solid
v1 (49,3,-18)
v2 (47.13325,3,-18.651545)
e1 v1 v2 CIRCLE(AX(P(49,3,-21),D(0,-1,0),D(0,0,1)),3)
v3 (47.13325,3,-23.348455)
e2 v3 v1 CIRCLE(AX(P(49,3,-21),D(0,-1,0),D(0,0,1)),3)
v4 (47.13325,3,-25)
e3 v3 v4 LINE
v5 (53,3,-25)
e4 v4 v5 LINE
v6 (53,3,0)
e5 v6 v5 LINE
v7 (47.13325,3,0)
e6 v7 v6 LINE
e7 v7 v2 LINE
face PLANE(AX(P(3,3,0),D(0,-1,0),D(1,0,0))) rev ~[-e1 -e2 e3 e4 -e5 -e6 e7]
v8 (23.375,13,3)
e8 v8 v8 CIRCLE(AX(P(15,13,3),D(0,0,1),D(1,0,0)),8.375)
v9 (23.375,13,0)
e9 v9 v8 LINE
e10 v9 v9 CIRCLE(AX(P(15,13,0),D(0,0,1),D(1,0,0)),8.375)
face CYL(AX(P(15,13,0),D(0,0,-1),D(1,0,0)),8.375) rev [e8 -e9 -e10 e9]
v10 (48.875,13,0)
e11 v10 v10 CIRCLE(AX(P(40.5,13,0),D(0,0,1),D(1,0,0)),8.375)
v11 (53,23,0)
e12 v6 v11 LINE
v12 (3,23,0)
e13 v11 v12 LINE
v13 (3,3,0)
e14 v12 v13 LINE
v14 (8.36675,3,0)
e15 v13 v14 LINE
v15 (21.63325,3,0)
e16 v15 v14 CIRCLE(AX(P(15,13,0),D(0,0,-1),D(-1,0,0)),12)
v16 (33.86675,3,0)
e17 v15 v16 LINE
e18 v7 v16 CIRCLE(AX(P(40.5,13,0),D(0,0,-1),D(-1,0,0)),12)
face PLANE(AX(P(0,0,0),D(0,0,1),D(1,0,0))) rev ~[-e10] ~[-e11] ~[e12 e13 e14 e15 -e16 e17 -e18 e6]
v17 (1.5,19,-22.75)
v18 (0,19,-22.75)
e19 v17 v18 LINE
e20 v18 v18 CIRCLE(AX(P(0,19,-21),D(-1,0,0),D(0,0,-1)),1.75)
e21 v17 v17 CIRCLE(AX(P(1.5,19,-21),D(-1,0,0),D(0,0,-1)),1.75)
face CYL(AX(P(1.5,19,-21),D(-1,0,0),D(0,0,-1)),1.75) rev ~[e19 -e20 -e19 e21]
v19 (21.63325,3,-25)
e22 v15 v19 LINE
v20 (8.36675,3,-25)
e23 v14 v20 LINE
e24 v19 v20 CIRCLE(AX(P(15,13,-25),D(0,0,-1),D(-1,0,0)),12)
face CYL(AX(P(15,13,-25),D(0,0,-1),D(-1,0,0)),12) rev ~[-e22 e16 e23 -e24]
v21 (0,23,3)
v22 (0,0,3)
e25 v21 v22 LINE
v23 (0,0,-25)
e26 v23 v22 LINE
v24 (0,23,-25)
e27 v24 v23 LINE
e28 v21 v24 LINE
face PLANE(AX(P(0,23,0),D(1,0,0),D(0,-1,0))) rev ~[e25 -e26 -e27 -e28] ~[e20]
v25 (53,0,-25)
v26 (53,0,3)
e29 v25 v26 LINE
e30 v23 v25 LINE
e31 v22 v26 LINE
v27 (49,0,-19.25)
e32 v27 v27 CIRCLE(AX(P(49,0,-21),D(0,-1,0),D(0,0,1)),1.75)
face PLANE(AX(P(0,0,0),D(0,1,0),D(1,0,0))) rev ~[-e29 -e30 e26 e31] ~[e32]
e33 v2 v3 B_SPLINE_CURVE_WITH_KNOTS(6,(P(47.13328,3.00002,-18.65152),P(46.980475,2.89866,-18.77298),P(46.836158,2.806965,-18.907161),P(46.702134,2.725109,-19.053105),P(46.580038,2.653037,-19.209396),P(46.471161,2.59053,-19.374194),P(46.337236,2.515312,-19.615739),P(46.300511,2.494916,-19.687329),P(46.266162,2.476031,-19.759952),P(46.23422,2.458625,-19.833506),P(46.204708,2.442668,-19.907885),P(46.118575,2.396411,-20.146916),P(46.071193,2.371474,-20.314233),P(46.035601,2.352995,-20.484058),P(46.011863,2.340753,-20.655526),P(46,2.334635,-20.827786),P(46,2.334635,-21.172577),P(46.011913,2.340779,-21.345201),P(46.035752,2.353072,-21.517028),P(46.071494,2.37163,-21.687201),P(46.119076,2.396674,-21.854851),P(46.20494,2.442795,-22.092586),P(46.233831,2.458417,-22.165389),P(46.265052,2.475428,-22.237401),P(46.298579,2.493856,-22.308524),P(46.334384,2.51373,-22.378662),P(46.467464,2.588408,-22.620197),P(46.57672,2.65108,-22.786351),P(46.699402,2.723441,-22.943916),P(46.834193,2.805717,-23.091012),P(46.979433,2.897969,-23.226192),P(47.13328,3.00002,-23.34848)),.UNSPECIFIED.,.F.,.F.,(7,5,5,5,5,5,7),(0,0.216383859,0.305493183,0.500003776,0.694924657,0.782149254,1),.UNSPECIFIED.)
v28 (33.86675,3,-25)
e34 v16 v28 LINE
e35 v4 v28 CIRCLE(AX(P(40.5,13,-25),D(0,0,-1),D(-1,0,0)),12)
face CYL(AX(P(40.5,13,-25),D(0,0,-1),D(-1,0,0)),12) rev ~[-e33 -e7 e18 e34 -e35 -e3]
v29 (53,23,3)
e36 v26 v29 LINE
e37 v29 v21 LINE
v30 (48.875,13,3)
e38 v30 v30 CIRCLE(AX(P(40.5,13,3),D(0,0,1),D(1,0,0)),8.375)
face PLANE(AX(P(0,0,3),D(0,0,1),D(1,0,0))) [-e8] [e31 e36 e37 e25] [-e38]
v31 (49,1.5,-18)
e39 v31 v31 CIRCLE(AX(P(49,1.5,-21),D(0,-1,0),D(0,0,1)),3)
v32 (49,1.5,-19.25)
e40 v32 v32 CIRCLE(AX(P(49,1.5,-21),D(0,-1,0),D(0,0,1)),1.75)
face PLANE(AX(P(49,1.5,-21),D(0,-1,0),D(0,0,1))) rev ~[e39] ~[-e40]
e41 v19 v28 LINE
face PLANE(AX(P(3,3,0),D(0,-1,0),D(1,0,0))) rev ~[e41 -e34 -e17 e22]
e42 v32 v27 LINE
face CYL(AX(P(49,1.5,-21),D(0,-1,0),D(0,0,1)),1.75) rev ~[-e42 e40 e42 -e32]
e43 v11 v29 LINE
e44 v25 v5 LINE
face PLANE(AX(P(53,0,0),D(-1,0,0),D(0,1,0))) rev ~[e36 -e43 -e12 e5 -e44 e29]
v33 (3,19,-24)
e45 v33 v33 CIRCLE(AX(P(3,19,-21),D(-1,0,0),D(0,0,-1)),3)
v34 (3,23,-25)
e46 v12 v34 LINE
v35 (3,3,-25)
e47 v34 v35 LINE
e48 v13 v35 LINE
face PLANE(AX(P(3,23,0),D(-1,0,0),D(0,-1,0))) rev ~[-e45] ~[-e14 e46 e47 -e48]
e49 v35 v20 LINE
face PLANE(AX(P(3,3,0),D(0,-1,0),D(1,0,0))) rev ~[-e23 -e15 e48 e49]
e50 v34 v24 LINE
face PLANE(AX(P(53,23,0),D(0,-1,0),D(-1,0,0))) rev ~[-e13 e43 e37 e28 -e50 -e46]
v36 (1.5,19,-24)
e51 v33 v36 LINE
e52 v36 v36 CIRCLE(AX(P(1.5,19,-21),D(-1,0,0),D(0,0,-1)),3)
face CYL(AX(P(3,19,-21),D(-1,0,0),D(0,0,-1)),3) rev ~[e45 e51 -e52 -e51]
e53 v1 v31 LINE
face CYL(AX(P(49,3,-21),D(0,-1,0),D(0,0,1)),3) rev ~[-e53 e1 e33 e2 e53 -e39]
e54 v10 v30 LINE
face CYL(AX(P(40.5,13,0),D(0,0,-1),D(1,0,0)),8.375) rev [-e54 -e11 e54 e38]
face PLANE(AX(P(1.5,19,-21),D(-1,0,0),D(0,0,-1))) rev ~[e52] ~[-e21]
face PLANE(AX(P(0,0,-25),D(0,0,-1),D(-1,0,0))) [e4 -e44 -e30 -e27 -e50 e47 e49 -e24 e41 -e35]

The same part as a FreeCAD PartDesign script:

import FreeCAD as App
import Part
import Sketcher
from FreeCAD import Vector
Q = App.Units.Quantity


def add_polygon(sketch, points):
    """Adds a closed chain of lines whose ends are joined by coincident constraints."""
    first, n = sketch.GeometryCount, len(points)
    for a, b in zip(points, points[1:] + points[:1]):
        sketch.addGeometry(Part.LineSegment(App.Vector(*a, 0), App.Vector(*b, 0)), False)
    for i in range(n):
        sketch.addConstraint(Sketcher.Constraint("Coincident", first + i, 2, first + (i + 1) % n, 1))

doc = App.newDocument("Part")
body = doc.addObject("PartDesign::Body", "Body")

sketch1 = body.newObject("Sketcher::SketchObject", "Sketch")
sketch1.AttachmentSupport = (doc.getObject("XY_Plane"), [""])
sketch1.MapMode = "FlatFace"
add_polygon(sketch1, [(0, 23), (0, 0), (53, 0), (53, 23)])
sketch1.addGeometry(Part.Circle(Vector(15, 13, 0), Vector(0, 0, 1), 8), False)
sketch1.addGeometry(Part.Circle(Vector(40, 13, 0), Vector(0, 0, 1), 8), False)
sketch1.addConstraint([
    Sketcher.Constraint("Vertical", 0),
    Sketcher.Constraint("Horizontal", 1),
    Sketcher.Constraint("Vertical", 2),
    Sketcher.Constraint("Horizontal", 3),
    Sketcher.Constraint("Coincident", 0, 2, -1, 1),
    Sketcher.Constraint("Equal", 4, 5),
    Sketcher.Constraint("Horizontal", 4, 3, 5, 3),
    Sketcher.Constraint("Diameter", 4, Q("16.75 mm")),
    Sketcher.Constraint("DistanceX", 1, 1, 1, 2, Q("53 mm")),
    Sketcher.Constraint("DistanceY", 0, 2, 0, 1, Q("23 mm")),
    Sketcher.Constraint("DistanceX", -1, 1, 4, 3, Q("15 mm")),
    Sketcher.Constraint("DistanceY", 5, 3, 2, 2, Q("10 mm")),
    Sketcher.Constraint("DistanceX", 5, 3, 1, 2, Q("12.5 mm")),
])
pad1 = body.newObject("PartDesign::Pad", "Pad")
pad1.Profile = sketch1
pad1.Length = 3

sketch2 = body.newObject("Sketcher::SketchObject", "Sketch001")
sketch2.AttachmentSupport = (doc.getObject("XY_Plane"), [""])
sketch2.MapMode = "FlatFace"
add_polygon(sketch2, [(53, 3), (53, 0), (0, 0), (0, 23), (3, 23), (3, 3)])
sketch2.addConstraint([
    Sketcher.Constraint("Vertical", 0),
    Sketcher.Constraint("Horizontal", 1),
    Sketcher.Constraint("Vertical", 2),
    Sketcher.Constraint("Horizontal", 3),
    Sketcher.Constraint("Vertical", 4),
    Sketcher.Constraint("Horizontal", 5),
    Sketcher.Constraint("Coincident", 1, 2, -1, 1),
    Sketcher.Constraint("Equal", 3, 0),
    Sketcher.Constraint("DistanceX", 3, 1, 3, 2, Q("3 mm")),
    Sketcher.Constraint("DistanceX", 1, 2, 1, 1, Q("53 mm")),
    Sketcher.Constraint("DistanceY", 2, 1, 2, 2, Q("23 mm")),
])
pad2 = body.newObject("PartDesign::Pad", "Pad001")
pad2.Profile = sketch2
pad2.Length = 25
pad2.Reversed = True

sketch3 = body.newObject("Sketcher::SketchObject", "Sketch002")
sketch3.AttachmentSupport = (doc.getObject("XZ_Plane"), [""])
sketch3.MapMode = "FlatFace"
sketch3.AttachmentOffset = App.Placement(Vector(0, 0, -3), App.Rotation())
sketch3.addGeometry(Part.Circle(Vector(49, -21, 0), Vector(0, 0, 1), 1.8), False)
sketch3.addConstraint([
    Sketcher.Constraint("Diameter", 0, Q("3.5 mm")),
    Sketcher.Constraint("DistanceX", -1, 1, 0, 3, Q("49 mm")),
    Sketcher.Constraint("DistanceY", 0, 3, -1, 1, Q("21 mm")),
])
doc.recompute()
hole = body.newObject("PartDesign::Hole", "Hole")
hole.Profile = sketch3
hole.ThreadType = "None"
hole.Diameter = 3.5
hole.DepthType = "ThroughAll"
hole.HoleCutType = "Counterbore"
hole.HoleCutDiameter = 6
hole.HoleCutDepth = 1.5
hole.Reversed = True

sketch4 = body.newObject("Sketcher::SketchObject", "Sketch003")
sketch4.AttachmentSupport = (doc.getObject("YZ_Plane"), [""])
sketch4.MapMode = "FlatFace"
sketch4.AttachmentOffset = App.Placement(Vector(0, 0, 3), App.Rotation())
sketch4.addGeometry(Part.Circle(Vector(19, -21, 0), Vector(0, 0, 1), 1.8), False)
sketch4.addConstraint([
    Sketcher.Constraint("Diameter", 0, Q("3.5 mm")),
    Sketcher.Constraint("DistanceX", -1, 1, 0, 3, Q("19 mm")),
    Sketcher.Constraint("DistanceY", 0, 3, -1, 1, Q("21 mm")),
])
doc.recompute()
hole2 = body.newObject("PartDesign::Hole", "Hole001")
hole2.Profile = sketch4
hole2.ThreadType = "None"
hole2.Diameter = 3.5
hole2.DepthType = "ThroughAll"
hole2.HoleCutType = "Counterbore"
hole2.HoleCutDiameter = 6
hole2.HoleCutDepth = 1.5

sketch5 = body.newObject("Sketcher::SketchObject", "Sketch004")
sketch5.AttachmentSupport = (doc.getObject("XY_Plane"), [""])
sketch5.MapMode = "FlatFace"
sketch5.AttachmentOffset = App.Placement(Vector(0, 0, -25), App.Rotation())
sketch5.addGeometry([
    Part.Circle(Vector(40, 13, 0), Vector(0, 0, 1), 12),
    Part.Circle(Vector(40, 13, 0), Vector(0, 0, 1), 8),
    Part.Circle(Vector(15, 13, 0), Vector(0, 0, 1), 12),
    Part.Circle(Vector(15, 13, 0), Vector(0, 0, 1), 8),
], False)
sketch5.addConstraint([
    Sketcher.Constraint("Coincident", 1, 3, 0, 3),
    Sketcher.Constraint("Coincident", 3, 3, 2, 3),
    Sketcher.Constraint("Equal", 0, 2),
    Sketcher.Constraint("Equal", 1, 3),
    Sketcher.Constraint("Horizontal", 1, 3, 2, 3),
    Sketcher.Constraint("Diameter", 0, Q("24 mm")),
    Sketcher.Constraint("Diameter", 1, Q("16.75 mm")),
    Sketcher.Constraint("DistanceY", -1, 1, 0, 3, Q("13 mm")),
    Sketcher.Constraint("DistanceX", -1, 1, 2, 3, Q("15 mm")),
    Sketcher.Constraint("DistanceX", -1, 1, 0, 3, Q("40.5 mm")),
])
pocket1 = body.newObject("PartDesign::Pocket", "Pocket")
pocket1.Profile = sketch5
pocket1.Length = 25
pocket1.Reversed = True

doc.recompute()
